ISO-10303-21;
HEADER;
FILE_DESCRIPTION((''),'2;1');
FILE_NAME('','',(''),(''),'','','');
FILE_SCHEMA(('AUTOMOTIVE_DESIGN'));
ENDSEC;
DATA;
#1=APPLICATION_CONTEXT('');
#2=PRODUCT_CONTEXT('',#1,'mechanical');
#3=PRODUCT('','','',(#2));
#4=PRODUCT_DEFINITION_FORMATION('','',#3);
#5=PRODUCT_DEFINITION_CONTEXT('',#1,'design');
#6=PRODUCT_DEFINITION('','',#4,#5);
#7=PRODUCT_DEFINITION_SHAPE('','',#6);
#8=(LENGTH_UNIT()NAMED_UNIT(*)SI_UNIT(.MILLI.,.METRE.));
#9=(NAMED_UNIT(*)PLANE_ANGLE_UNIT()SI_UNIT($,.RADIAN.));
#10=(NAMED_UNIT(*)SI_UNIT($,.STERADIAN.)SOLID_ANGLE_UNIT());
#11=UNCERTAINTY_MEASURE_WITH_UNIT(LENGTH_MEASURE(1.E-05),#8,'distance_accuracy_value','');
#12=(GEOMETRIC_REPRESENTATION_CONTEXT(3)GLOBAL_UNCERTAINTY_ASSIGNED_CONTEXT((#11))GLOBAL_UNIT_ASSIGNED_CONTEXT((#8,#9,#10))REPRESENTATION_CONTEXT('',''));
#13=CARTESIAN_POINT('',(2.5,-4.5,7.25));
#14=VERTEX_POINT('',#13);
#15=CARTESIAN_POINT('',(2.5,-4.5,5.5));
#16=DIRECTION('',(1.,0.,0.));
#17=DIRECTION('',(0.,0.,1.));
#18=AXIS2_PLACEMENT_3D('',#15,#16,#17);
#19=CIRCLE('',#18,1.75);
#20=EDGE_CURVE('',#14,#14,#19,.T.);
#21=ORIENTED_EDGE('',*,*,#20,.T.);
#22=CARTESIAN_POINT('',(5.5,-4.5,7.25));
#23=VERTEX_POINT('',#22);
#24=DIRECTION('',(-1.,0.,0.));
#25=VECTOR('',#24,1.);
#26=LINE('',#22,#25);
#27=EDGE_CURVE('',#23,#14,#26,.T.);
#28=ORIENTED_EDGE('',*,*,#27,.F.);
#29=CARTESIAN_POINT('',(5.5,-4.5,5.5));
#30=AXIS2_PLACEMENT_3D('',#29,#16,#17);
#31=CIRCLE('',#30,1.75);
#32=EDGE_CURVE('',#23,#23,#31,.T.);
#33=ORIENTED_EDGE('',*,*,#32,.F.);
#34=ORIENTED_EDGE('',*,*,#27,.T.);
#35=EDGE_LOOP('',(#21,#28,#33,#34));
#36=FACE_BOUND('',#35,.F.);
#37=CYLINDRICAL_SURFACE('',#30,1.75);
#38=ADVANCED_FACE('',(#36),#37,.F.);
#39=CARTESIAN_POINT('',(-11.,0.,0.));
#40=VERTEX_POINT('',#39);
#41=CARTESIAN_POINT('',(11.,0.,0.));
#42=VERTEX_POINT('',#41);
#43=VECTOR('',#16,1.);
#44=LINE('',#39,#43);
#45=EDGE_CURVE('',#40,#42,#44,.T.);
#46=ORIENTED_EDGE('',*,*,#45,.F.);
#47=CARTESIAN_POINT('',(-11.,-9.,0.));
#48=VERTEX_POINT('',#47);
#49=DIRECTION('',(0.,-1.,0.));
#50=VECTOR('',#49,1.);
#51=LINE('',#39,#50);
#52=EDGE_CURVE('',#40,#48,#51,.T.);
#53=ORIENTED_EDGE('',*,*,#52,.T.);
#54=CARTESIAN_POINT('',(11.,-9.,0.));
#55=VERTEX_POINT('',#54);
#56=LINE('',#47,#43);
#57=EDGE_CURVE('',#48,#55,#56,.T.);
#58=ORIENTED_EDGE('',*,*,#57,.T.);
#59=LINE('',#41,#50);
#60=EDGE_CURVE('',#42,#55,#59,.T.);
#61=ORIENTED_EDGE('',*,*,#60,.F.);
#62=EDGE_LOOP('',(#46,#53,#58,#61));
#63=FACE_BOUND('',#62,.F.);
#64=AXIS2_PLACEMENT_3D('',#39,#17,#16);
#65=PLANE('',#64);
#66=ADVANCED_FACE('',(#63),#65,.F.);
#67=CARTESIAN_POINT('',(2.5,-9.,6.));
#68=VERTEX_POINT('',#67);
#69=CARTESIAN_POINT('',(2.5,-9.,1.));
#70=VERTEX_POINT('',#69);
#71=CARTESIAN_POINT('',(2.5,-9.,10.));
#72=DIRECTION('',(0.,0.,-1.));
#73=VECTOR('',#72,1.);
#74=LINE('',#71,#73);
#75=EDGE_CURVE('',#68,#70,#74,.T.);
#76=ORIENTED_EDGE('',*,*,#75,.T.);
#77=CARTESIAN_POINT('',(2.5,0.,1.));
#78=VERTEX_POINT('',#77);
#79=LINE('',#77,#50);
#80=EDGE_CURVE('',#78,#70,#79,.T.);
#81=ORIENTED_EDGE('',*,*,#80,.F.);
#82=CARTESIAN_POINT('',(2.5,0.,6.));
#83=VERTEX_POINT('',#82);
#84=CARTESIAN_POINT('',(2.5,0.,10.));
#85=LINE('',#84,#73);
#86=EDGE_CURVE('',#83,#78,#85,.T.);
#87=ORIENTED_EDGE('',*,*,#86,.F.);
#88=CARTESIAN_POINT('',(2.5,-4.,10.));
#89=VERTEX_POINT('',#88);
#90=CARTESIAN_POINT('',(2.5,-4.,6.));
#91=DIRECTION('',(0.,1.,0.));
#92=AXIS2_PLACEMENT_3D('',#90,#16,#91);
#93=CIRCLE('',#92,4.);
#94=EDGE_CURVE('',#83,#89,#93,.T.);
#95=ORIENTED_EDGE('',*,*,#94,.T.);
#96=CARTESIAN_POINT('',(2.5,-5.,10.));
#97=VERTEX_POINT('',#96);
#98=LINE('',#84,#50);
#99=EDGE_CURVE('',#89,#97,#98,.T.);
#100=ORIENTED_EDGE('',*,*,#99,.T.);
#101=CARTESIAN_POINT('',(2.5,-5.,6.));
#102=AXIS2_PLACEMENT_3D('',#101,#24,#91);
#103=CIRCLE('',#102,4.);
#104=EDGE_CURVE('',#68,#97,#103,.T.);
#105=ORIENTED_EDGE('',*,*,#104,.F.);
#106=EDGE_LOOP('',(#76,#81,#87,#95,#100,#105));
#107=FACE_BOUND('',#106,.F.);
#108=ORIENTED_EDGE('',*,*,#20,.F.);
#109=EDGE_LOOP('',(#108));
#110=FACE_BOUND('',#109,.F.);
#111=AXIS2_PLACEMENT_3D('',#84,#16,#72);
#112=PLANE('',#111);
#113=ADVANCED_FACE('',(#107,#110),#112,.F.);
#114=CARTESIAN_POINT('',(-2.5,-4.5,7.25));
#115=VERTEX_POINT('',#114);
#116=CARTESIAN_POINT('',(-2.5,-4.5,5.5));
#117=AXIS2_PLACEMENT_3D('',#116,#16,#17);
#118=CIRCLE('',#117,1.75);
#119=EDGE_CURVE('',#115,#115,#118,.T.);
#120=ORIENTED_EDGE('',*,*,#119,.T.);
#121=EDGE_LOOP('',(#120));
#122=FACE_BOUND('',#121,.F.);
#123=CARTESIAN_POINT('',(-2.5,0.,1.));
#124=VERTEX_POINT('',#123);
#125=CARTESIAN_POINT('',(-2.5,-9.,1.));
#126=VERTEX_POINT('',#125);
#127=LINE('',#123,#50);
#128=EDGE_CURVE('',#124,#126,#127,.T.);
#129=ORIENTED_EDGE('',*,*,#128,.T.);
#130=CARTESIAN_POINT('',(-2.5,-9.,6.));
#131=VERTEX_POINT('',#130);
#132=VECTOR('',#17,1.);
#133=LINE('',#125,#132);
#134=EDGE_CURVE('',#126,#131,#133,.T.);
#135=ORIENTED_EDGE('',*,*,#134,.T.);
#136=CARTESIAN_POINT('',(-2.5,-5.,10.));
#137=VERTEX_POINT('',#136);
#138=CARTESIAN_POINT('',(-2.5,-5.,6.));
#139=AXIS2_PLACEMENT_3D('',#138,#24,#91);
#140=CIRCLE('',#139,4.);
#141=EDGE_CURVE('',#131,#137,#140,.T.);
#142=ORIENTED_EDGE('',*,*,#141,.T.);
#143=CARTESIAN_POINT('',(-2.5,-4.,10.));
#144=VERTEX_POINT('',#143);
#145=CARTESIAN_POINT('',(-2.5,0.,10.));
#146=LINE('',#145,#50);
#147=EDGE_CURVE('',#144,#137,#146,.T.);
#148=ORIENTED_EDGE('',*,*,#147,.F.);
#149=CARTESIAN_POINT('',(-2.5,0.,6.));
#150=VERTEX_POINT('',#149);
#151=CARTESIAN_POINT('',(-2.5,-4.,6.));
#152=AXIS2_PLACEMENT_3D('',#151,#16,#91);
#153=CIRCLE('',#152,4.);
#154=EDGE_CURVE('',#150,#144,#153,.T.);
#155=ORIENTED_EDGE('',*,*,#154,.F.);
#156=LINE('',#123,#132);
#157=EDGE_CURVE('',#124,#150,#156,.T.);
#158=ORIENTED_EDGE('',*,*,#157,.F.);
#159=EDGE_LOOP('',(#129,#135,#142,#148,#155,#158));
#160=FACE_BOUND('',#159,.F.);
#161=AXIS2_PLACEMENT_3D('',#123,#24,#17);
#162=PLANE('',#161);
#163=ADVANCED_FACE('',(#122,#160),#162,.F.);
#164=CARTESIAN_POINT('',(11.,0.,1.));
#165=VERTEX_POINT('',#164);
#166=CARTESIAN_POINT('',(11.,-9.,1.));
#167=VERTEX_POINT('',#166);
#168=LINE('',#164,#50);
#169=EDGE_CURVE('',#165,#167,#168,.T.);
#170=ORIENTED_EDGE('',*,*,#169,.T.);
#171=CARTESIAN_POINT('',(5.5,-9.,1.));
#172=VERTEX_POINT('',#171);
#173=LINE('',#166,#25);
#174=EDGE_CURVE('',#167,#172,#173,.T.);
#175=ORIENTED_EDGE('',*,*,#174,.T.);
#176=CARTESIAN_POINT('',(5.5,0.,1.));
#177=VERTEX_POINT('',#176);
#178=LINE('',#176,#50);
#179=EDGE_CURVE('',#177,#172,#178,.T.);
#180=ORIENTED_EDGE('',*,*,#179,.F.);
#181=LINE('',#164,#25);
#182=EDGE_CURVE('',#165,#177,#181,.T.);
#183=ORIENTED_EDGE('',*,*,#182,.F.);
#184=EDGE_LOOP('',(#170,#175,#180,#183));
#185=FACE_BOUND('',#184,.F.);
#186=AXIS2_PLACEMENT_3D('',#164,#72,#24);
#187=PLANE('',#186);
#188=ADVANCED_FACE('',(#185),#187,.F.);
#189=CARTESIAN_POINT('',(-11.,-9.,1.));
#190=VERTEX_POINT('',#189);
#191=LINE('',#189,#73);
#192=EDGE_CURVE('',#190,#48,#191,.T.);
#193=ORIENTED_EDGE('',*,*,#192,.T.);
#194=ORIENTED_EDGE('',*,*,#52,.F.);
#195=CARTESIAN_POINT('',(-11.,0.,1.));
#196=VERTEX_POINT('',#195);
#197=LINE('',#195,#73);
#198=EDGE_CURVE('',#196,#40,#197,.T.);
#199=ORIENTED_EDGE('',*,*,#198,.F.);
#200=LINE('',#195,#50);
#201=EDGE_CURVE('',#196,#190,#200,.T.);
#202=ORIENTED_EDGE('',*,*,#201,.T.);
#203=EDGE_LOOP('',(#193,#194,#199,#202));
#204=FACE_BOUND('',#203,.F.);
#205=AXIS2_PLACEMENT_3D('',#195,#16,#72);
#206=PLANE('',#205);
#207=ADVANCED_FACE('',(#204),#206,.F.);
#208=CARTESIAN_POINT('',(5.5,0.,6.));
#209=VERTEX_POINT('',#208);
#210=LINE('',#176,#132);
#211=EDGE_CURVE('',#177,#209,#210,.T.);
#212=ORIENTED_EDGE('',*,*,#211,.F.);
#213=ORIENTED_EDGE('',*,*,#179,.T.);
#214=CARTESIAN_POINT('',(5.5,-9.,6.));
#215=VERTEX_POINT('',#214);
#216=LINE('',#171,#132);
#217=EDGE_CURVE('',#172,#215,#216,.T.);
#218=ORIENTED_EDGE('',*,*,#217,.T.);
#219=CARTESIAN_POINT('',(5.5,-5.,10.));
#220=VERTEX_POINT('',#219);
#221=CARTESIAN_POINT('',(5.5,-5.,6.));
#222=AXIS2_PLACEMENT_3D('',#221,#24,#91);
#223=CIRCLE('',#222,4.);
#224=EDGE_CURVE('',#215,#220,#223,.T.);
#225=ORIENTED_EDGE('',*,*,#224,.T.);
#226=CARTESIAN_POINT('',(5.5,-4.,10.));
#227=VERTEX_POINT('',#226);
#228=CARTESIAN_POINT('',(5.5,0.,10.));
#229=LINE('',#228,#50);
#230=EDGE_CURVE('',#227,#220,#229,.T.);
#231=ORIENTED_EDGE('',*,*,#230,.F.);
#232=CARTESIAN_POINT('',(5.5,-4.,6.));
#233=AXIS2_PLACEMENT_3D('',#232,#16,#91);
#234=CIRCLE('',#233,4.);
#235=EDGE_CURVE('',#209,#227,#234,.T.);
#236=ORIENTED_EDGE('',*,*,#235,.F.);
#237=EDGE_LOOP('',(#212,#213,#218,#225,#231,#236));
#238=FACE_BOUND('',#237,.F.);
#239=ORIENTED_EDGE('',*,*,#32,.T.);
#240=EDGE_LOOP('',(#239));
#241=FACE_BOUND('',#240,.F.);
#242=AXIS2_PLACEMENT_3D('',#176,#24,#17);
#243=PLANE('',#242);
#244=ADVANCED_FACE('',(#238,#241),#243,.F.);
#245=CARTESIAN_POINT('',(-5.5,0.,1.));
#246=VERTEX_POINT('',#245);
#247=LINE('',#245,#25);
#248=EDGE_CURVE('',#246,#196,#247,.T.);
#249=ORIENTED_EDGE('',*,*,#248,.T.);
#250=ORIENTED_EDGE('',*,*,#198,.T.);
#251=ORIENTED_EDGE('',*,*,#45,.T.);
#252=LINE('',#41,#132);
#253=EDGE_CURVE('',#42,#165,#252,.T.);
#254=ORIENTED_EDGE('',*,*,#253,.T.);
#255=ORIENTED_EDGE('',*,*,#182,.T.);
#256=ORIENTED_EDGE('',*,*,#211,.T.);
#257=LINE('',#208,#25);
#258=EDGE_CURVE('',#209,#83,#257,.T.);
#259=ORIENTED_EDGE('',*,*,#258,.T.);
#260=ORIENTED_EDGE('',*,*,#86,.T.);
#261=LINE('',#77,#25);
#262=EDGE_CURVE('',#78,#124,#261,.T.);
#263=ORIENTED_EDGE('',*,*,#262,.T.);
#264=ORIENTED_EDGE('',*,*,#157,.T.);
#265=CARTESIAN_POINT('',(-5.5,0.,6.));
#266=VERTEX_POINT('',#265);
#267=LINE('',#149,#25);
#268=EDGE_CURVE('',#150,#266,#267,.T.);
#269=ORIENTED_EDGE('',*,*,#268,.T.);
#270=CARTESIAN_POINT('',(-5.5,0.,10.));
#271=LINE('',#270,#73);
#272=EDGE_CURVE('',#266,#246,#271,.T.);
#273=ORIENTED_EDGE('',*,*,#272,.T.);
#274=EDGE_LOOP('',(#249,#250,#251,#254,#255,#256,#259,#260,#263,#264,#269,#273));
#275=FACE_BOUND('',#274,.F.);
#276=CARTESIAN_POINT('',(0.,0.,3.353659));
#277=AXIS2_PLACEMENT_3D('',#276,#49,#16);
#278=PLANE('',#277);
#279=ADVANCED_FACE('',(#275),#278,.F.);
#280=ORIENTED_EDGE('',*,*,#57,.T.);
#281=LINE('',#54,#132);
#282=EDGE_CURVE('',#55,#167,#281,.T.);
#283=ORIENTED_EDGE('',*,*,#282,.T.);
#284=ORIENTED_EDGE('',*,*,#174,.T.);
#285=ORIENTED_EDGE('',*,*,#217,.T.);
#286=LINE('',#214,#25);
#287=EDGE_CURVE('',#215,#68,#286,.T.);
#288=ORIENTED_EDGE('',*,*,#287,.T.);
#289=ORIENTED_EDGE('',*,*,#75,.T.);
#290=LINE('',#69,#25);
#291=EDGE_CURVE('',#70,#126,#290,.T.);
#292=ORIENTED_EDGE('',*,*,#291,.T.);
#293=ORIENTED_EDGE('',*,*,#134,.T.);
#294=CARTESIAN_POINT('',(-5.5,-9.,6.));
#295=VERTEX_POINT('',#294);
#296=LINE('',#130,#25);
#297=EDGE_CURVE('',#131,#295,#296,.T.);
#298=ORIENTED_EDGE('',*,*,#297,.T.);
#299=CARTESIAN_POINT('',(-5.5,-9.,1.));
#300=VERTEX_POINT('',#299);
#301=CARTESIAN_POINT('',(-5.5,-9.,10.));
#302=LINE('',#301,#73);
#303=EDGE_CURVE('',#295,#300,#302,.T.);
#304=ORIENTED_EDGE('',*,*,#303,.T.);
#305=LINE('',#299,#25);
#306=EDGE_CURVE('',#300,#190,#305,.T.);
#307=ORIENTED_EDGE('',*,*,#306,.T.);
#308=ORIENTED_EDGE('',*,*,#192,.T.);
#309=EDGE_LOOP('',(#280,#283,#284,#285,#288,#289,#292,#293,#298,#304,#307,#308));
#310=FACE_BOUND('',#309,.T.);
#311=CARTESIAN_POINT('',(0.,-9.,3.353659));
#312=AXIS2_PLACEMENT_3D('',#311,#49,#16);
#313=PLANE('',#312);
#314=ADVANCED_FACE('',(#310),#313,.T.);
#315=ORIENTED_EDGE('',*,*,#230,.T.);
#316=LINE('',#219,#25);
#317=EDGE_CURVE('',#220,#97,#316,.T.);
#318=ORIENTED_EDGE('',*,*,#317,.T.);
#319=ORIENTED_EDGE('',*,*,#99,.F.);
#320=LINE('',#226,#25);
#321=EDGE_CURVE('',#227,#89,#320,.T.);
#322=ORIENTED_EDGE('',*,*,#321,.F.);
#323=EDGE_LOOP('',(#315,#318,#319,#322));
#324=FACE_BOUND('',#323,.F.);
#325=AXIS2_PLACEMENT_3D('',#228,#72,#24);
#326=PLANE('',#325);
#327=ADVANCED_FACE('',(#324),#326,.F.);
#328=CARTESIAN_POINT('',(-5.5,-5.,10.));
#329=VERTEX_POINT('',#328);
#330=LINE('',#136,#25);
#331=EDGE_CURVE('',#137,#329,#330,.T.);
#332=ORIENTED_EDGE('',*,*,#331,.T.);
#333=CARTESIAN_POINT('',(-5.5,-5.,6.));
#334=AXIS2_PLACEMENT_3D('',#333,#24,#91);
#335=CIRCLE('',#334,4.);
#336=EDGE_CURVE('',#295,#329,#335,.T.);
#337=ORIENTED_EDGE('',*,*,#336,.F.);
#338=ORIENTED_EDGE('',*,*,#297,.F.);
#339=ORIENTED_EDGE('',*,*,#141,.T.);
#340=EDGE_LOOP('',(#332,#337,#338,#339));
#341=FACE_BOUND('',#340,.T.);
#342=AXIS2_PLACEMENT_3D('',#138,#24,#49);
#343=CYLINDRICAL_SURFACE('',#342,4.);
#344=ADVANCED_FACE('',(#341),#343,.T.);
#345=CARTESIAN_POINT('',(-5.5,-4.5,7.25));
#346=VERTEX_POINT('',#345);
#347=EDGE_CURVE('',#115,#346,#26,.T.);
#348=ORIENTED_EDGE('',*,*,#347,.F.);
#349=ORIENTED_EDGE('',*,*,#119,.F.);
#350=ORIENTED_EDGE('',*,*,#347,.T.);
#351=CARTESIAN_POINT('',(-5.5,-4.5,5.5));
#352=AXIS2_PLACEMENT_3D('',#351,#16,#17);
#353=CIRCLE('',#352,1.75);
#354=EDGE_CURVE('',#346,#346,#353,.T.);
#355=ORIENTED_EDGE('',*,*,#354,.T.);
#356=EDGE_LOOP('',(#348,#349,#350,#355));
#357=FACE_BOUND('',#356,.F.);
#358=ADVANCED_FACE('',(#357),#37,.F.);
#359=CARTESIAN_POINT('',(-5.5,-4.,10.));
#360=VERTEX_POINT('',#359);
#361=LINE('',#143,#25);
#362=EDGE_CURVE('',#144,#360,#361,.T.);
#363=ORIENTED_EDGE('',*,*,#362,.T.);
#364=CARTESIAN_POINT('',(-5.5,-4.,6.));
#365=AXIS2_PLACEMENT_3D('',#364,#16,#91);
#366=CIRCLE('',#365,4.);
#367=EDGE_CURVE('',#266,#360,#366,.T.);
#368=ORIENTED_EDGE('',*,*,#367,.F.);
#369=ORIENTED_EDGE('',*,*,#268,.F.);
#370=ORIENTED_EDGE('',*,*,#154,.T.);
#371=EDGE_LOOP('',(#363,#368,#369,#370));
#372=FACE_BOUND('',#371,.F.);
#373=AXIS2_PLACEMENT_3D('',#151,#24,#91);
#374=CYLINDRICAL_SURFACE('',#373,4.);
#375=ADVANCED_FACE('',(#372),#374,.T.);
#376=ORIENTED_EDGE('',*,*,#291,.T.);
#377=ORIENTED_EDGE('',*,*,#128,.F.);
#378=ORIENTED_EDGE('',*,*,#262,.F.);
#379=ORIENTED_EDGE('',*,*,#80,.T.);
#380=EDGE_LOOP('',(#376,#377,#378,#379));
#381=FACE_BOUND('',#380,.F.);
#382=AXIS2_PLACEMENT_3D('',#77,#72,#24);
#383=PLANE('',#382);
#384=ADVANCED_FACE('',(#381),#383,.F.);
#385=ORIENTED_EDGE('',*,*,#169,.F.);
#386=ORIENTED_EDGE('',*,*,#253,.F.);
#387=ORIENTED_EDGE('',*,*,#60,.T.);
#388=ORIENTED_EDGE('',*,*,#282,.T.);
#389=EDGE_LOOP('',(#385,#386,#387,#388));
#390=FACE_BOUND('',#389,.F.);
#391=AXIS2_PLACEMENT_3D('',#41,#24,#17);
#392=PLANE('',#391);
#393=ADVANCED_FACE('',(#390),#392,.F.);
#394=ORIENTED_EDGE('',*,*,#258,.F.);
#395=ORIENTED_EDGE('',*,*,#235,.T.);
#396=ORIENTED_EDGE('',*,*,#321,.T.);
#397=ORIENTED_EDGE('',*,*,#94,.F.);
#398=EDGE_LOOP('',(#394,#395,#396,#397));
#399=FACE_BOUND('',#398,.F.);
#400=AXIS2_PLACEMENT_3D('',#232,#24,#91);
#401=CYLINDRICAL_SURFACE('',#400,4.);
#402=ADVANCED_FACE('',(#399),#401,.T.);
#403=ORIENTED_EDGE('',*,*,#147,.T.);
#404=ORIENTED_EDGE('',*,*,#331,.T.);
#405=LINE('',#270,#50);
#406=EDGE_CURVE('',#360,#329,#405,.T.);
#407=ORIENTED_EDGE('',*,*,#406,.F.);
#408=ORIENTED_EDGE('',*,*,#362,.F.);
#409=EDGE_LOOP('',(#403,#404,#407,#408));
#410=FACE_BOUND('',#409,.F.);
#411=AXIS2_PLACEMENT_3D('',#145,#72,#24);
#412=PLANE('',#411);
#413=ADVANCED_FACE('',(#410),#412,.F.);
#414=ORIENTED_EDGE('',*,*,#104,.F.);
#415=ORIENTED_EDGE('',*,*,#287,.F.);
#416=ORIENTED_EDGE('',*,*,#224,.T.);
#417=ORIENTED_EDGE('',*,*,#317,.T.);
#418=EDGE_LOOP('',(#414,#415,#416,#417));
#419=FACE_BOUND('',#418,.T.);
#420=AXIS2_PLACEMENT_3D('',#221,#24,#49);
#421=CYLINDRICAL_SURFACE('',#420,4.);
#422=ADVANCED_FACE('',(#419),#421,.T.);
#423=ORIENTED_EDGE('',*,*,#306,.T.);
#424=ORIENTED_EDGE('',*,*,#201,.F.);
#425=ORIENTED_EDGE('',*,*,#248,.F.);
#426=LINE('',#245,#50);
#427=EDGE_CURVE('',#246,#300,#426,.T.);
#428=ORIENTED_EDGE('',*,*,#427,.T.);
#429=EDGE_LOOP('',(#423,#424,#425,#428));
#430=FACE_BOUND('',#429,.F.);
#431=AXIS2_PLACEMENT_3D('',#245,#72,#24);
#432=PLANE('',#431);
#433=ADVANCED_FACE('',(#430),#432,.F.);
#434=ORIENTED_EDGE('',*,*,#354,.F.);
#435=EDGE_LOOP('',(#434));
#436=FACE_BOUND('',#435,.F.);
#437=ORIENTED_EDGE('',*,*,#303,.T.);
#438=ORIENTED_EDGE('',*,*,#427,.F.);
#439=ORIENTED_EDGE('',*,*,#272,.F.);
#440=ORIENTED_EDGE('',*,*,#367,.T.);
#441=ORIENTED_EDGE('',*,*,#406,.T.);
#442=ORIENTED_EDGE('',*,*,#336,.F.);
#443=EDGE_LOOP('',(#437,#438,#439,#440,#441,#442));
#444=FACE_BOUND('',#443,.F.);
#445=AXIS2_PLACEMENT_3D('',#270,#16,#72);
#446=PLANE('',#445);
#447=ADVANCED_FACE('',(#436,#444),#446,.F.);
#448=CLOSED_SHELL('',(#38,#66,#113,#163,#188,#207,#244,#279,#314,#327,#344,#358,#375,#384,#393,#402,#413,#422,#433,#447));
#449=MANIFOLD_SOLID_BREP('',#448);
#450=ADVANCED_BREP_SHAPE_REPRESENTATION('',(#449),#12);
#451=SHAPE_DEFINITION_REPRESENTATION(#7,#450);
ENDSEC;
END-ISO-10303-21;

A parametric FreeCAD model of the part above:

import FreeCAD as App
import Part
import Sketcher
Q = App.Units.Quantity


def edges_at(feature, points):
    """Names of the edges that pass closest to the given points."""
    edges = feature.Shape.Edges
    near = lambda p: min(range(len(edges)), key=lambda i: edges[i].distToShape(Part.Vertex(*p))[0])
    return sorted({f"Edge{near(p) + 1}" for p in points})


def add_polygon(sketch, points):
    """Adds a closed chain of lines whose ends are joined by coincident constraints."""
    first, n = sketch.GeometryCount, len(points)
    for a, b in zip(points, points[1:] + points[:1]):
        sketch.addGeometry(Part.LineSegment(App.Vector(*a, 0), App.Vector(*b, 0)), False)
    for i in range(n):
        sketch.addConstraint(Sketcher.Constraint("Coincident", first + i, 2, first + (i + 1) % n, 1))

doc = App.newDocument("Part")
body = doc.addObject("PartDesign::Body", "Body")

sketch1 = doc.addObject("Sketcher::SketchObject", "Sketch")
body.addObject(sketch1)
sketch1.AttachmentSupport = (doc.XY_Plane, [""])
sketch1.MapMode = "FlatFace"
add_polygon(sketch1, [(-11, 1), (-11, 0), (11, 0), (11, 1), (5.5, 1), (5.5, 10), (2.5, 10), (2.5, 1), (-2.5, 1), (-2.5, 10), (-5.5, 10), (-5.5, 1)])
sketch1.addConstraint([
    Sketcher.Constraint("Vertical", 0),
    Sketcher.Constraint("Horizontal", 1),
    Sketcher.Constraint("Vertical", 2),
    Sketcher.Constraint("Horizontal", 3),
    Sketcher.Constraint("Vertical", 4),
    Sketcher.Constraint("Horizontal", 5),
    Sketcher.Constraint("Vertical", 6),
    Sketcher.Constraint("Horizontal", 7),
    Sketcher.Constraint("Vertical", 8),
    Sketcher.Constraint("Horizontal", 9),
    Sketcher.Constraint("Vertical", 10),
    Sketcher.Constraint("Horizontal", 11),
    Sketcher.Constraint("Symmetric", 0, 2, 1, 2, -1, 1),
    Sketcher.Constraint("Symmetric", 5, 2, 8, 2, -2),
    Sketcher.Constraint("Symmetric", 3, 2, 10, 2, -2),
    Sketcher.Constraint("Horizontal", 3, 2, 6, 2),
    Sketcher.Constraint("DistanceX", 1, 1, 1, 2, Q("22 mm")),
    Sketcher.Constraint("DistanceX", 5, 2, 5, 1, Q("3 mm")),
    Sketcher.Constraint("DistanceX", 7, 2, 7, 1, Q("5 mm")),
    Sketcher.Constraint("DistanceY", 0, 2, 0, 1, Q("1 mm")),
    Sketcher.Constraint("DistanceY", 4, 1, 4, 2, Q("9 mm")),
])
pad1 = doc.addObject("PartDesign::Pad", "Pad")
body.addObject(pad1)
pad1.Profile = sketch1
pad1.Length = 9

sketch2 = doc.addObject("Sketcher::SketchObject", "Sketch001")
body.addObject(sketch2)
sketch2.AttachmentSupport = (doc.YZ_Plane, [""])
sketch2.MapMode = "FlatFace"
sketch2.AttachmentOffset = App.Placement(App.Vector(0, 0, 5.5), App.Rotation())
sketch2.addGeometry(Part.Circle(App.Vector(5.5, 4.5, 0), App.Vector(0, 0, 1), 1.75), False)
sketch2.addConstraint([
    Sketcher.Constraint("Diameter", 0, Q("3.5 mm")),
    Sketcher.Constraint("DistanceX", -1, 1, 0, 3, Q("5.5 mm")),
    Sketcher.Constraint("DistanceY", -1, 1, 0, 3, Q("4.5 mm")),
])
pocket1 = doc.addObject("PartDesign::Pocket", "Pocket")
body.addObject(pocket1)
pocket1.Profile = sketch2
pocket1.Length = 25
doc.recompute()

fillet = doc.addObject("PartDesign::Fillet", "Fillet")
body.addObject(fillet)
fillet.Base = (pocket1, edges_at(pocket1, [
    (-4, 10, 9),
    (4, 10, 9),
    (4, 10, 0),
    (-4, 10, 0),
]))
fillet.Radius = 4
body2 = doc.addObject("PartDesign::Body", "Body001")
doc.recompute()

body.Placement = App.Placement(App.Vector(0, 0, 0), App.Rotation(App.Vector(1, 0, 0), 90))
boolean = doc.addObject("PartDesign::Boolean", "Boolean")
body2.addObject(boolean)
boolean.Type = "Fuse"
boolean.addObjects([body])

doc.recompute()
